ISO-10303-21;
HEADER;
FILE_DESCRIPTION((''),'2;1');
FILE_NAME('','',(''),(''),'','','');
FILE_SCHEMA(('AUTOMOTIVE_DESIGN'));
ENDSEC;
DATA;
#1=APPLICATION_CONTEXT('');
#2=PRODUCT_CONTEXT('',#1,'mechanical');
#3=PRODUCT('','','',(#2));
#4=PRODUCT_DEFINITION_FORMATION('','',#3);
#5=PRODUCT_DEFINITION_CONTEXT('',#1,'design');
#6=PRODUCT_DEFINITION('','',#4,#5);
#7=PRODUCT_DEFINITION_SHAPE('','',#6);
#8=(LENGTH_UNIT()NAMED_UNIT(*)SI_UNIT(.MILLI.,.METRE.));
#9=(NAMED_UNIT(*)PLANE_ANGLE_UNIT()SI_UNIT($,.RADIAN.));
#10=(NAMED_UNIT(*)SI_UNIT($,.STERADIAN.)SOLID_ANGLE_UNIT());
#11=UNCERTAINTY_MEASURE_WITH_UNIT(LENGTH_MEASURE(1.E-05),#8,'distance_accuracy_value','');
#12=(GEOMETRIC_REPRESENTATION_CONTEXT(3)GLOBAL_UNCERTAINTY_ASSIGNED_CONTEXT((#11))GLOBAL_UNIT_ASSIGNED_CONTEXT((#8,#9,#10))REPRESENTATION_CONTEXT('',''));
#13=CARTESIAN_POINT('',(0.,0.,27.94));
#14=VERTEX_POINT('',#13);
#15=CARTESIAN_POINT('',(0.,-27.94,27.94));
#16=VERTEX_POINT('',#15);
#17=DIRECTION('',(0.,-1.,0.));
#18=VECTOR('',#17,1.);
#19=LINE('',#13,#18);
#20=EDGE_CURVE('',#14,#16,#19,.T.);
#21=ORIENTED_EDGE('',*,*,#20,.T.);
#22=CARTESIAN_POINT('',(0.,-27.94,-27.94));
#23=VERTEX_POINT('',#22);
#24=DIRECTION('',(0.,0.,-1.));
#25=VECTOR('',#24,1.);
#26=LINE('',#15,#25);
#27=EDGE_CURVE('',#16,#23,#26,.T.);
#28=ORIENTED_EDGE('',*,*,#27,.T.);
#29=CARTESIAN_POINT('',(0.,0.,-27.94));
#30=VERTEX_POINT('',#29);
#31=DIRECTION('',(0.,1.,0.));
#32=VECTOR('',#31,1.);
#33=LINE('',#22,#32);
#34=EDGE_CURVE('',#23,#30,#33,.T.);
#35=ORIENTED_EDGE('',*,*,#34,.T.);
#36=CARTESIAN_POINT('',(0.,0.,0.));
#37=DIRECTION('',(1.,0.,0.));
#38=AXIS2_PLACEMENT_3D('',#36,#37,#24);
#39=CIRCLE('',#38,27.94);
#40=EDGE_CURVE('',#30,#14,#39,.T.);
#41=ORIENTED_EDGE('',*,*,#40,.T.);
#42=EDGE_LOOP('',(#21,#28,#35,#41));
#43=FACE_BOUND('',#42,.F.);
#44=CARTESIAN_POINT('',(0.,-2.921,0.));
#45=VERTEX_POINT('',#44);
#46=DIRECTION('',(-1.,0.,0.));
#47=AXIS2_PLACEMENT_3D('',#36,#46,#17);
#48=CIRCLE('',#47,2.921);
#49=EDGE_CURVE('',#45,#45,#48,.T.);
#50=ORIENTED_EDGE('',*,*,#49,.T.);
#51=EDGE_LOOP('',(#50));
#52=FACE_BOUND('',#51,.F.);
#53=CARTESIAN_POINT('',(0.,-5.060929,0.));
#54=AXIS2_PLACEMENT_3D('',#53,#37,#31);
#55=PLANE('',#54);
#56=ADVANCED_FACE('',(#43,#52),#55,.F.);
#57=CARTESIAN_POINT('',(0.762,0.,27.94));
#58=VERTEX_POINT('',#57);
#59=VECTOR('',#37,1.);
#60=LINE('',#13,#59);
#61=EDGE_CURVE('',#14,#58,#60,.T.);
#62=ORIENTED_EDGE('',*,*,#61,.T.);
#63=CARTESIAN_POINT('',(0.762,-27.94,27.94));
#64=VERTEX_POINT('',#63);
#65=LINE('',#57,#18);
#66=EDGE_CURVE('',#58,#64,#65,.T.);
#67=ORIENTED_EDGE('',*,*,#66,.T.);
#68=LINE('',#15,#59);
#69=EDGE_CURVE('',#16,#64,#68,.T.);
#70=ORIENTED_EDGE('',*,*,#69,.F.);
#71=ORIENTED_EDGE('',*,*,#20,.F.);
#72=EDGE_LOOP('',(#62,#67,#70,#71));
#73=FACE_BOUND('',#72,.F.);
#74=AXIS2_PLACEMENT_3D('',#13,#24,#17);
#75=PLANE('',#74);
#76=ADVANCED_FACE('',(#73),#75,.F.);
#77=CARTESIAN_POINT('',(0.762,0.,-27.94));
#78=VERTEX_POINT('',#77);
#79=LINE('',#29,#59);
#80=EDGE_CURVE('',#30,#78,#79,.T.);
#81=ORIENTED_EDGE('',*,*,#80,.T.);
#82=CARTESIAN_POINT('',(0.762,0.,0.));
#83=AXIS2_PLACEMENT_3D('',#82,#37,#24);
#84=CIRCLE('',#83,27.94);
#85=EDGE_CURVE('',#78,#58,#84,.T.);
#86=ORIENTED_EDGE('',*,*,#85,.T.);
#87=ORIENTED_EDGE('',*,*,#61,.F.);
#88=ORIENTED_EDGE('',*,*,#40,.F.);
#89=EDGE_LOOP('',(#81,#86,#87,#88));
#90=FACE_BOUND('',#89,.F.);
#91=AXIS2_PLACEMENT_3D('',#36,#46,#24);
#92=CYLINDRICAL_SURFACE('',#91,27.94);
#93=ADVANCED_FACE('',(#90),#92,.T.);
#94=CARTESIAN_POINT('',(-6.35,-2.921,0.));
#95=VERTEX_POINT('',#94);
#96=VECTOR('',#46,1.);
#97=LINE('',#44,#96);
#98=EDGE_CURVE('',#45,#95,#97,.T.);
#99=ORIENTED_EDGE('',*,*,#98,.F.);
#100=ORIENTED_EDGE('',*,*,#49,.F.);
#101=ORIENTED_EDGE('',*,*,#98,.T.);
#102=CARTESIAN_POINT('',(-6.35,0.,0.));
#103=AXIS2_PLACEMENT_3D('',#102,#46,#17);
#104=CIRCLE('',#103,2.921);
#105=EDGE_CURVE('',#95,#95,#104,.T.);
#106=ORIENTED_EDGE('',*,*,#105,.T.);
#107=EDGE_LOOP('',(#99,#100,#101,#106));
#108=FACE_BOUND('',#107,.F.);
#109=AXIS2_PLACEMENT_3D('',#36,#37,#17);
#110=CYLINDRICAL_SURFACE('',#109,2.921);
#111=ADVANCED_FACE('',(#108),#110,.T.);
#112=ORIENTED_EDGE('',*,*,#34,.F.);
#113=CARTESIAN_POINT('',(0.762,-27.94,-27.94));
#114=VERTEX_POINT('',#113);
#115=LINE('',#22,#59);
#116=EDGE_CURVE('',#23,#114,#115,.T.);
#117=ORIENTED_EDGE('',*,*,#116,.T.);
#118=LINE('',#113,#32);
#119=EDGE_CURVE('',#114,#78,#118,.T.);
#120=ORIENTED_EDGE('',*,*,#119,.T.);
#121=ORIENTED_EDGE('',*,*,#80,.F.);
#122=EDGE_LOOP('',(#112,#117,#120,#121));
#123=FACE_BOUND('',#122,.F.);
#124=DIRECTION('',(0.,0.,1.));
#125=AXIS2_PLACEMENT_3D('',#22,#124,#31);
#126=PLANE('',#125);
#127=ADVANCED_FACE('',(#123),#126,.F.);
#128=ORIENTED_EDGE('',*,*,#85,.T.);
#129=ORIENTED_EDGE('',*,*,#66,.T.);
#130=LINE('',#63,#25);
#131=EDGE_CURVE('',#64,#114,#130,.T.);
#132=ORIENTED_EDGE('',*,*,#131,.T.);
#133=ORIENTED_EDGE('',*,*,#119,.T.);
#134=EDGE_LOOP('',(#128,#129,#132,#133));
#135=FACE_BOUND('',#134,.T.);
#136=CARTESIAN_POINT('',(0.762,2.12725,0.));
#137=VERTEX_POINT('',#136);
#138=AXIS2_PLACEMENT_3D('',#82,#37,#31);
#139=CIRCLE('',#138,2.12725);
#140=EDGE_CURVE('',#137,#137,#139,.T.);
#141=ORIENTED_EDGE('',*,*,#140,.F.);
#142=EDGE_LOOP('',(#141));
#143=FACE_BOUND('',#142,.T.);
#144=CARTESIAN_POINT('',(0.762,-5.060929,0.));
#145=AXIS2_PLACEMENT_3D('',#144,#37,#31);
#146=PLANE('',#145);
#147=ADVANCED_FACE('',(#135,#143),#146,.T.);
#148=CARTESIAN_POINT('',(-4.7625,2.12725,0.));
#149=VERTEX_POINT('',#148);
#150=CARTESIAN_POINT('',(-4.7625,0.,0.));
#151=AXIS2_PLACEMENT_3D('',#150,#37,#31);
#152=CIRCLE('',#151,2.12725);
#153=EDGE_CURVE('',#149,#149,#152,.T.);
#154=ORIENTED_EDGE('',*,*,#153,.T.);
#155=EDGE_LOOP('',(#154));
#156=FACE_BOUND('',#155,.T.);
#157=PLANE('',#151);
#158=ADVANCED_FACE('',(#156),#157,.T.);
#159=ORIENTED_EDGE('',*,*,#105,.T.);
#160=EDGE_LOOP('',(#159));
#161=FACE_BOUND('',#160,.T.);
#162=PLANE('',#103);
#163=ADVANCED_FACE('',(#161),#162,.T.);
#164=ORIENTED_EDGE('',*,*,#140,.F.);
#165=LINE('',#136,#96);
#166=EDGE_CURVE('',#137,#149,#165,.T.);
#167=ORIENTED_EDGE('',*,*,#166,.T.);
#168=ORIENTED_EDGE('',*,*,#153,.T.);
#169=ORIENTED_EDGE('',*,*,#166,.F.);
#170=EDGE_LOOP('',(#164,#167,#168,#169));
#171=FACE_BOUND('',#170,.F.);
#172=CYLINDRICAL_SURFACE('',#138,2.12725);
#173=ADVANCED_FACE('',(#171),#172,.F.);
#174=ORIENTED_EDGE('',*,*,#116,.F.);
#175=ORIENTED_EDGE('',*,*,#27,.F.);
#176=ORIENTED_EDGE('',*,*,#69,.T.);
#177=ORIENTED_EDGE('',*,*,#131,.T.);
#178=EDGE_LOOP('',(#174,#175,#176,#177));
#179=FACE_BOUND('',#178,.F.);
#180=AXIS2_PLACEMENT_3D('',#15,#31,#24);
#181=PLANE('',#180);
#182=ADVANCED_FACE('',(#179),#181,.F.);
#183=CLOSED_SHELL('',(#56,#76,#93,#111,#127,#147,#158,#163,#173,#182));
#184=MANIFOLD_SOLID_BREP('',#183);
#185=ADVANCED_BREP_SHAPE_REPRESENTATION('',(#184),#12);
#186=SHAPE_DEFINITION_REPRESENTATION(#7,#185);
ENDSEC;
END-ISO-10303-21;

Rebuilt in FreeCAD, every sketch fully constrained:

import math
import FreeCAD as App
import Part
import Sketcher

V = App.Vector
Q = App.Units.Quantity

doc = App.newDocument("Part")
body = doc.addObject("PartDesign::Body", "Body")

sketch1 = body.newObject("Sketcher::SketchObject", "Sketch")
sketch1.AttachmentSupport = (doc.getObject("YZ_Plane"), [""])
sketch1.MapMode = "FlatFace"
sketch1.addGeometry([
    Part.LineSegment(V(-27.94, -27.94, 0), V(0, -27.94, 0)),
    Part.ArcOfCircle(Part.Circle(V(0, 0, 0), V(0, 0, 1), 27.94), math.radians(-90), math.radians(90)),
    Part.LineSegment(V(0, 27.94, 0), V(-27.94, 27.94, 0)),
    Part.LineSegment(V(-27.94, 27.94, 0), V(-27.94, -27.94, 0)),
], False)
sketch1.addConstraint([
    Sketcher.Constraint("Tangent", 0, 2, 1, 1),
    Sketcher.Constraint("Tangent", 1, 2, 2, 1),
    Sketcher.Constraint("Coincident", 2, 2, 3, 1),
    Sketcher.Constraint("Coincident", 3, 2, 0, 1),
    Sketcher.Constraint("Horizontal", 0),
    Sketcher.Constraint("Horizontal", 2),
    Sketcher.Constraint("Vertical", 3),
    Sketcher.Constraint("Coincident", 1, 3, -1, 1),
    Sketcher.Constraint("Radius", 1, Q("1.1 in")),
    Sketcher.Constraint("DistanceX", 0, 1, 0, 2, Q("1.1 in")),
])
pad1 = body.newObject("PartDesign::Pad", "Pad")
pad1.Profile = sketch1
pad1.Length = Q("0.03 in")

sketch2 = body.newObject("Sketcher::SketchObject", "Sketch001")
sketch2.AttachmentSupport = (doc.getObject("YZ_Plane"), [""])
sketch2.MapMode = "FlatFace"
sketch2.addGeometry(Part.Circle(V(0, 0, 0), V(0, 0, 1), 2.921), False)
sketch2.addConstraint([
    Sketcher.Constraint("Coincident", 0, 3, -1, 1),
    Sketcher.Constraint("Diameter", 0, Q("0.23 in")),
])
pad2 = body.newObject("PartDesign::Pad", "Pad001")
pad2.Profile = sketch2
pad2.Length = Q("0.25 in")
pad2.Reversed = True

sketch3 = body.newObject("Sketcher::SketchObject", "Sketch002")
sketch3.AttachmentSupport = (doc.getObject("YZ_Plane"), [""])
sketch3.MapMode = "FlatFace"
sketch3.AttachmentOffset = App.Placement(V(0, 0, 0.03 * 25.4), App.Rotation())
sketch3.addGeometry(Part.Circle(V(0, 0, 0), V(0, 0, 1), 2.12725), False)
sketch3.addConstraint([
    Sketcher.Constraint("Coincident", 0, 3, -1, 1),
    Sketcher.Constraint("Diameter", 0, Q("0.1675 in")),
])
pocket1 = body.newObject("PartDesign::Pocket", "Pocket")
pocket1.Profile = sketch3
pocket1.Length = Q("0.2175 in")

doc.recompute()
